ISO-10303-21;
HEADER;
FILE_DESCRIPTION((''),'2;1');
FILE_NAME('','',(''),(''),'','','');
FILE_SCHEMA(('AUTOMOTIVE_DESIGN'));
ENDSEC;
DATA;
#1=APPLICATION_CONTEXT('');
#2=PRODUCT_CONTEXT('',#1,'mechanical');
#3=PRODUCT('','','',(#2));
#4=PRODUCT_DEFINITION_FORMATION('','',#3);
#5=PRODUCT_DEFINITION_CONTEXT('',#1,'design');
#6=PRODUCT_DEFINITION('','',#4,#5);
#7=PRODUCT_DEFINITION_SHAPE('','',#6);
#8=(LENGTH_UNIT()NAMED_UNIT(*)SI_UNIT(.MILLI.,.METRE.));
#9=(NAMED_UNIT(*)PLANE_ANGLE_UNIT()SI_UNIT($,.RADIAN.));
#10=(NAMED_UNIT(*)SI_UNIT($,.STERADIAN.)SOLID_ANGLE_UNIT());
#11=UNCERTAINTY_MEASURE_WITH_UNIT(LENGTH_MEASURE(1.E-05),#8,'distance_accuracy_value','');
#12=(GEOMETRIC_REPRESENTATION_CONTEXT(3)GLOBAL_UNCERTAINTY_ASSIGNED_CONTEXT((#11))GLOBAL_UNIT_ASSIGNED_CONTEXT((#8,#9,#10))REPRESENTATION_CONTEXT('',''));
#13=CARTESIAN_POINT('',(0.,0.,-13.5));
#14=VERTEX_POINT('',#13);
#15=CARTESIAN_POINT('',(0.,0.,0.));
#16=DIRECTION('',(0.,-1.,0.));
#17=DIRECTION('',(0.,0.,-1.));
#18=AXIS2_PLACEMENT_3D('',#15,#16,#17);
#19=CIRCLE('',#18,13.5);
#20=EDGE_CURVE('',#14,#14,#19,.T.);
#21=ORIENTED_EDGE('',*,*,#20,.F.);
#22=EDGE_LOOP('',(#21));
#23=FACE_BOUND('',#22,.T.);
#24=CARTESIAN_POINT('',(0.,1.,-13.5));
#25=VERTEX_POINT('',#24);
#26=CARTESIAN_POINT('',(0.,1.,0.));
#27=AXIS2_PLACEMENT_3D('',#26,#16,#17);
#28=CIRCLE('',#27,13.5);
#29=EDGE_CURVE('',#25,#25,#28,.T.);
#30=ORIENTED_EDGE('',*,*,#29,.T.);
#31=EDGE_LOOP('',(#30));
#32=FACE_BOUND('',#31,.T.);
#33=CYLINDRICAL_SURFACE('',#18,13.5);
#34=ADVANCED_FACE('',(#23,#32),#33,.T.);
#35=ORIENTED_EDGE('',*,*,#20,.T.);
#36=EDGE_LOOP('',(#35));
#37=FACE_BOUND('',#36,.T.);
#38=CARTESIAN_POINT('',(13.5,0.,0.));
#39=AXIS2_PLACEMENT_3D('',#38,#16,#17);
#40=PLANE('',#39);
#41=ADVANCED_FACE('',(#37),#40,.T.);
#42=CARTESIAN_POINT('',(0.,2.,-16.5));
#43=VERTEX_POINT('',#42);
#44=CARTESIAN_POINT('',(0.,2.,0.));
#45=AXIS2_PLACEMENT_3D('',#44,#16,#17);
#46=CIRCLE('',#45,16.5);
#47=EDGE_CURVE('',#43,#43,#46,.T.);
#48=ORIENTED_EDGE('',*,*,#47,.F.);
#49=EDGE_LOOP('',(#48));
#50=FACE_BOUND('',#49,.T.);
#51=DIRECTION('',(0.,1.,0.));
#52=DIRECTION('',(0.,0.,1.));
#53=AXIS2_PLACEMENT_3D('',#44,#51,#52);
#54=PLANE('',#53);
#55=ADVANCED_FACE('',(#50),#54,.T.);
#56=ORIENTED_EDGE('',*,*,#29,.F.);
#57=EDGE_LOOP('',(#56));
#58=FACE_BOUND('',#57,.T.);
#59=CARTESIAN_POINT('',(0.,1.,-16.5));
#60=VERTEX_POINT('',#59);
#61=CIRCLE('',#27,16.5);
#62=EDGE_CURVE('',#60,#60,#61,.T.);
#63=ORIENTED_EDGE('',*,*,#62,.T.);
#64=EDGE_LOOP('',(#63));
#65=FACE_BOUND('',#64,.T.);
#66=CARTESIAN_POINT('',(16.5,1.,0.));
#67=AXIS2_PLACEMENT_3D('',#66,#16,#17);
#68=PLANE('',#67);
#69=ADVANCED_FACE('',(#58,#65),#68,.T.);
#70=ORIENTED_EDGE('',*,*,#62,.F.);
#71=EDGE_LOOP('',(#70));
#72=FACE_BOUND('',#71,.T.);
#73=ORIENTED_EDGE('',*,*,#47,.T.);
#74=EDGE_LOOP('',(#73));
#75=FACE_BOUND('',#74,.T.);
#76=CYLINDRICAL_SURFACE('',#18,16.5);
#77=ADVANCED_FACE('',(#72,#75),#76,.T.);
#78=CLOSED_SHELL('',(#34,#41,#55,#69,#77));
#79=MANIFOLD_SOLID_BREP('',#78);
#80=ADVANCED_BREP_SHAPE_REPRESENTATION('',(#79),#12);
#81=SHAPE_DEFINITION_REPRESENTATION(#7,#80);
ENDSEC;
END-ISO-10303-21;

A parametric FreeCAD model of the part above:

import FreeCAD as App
import Part
import Sketcher

V = App.Vector

doc = App.newDocument("Part")
body = doc.addObject("PartDesign::Body", "Body")

sketch1 = body.newObject("Sketcher::SketchObject", "Sketch")
sketch1.AttachmentSupport = (doc.getObject("XY_Plane"), [""])
sketch1.MapMode = "FlatFace"
sketch1.addGeometry([
    Part.LineSegment(V(0, 2, 0), V(0, 0, 0)),
    Part.LineSegment(V(0, 0, 0), V(13.5, 0, 0)),
    Part.LineSegment(V(13.5, 0, 0), V(13.5, 1, 0)),
    Part.LineSegment(V(13.5, 1, 0), V(16.5, 1, 0)),
    Part.LineSegment(V(16.5, 1, 0), V(16.5, 2, 0)),
    Part.LineSegment(V(16.5, 2, 0), V(0, 2, 0)),
], False)
sketch1.addConstraint([
    Sketcher.Constraint("Coincident", 0, 2, 1, 1),
    Sketcher.Constraint("Coincident", 1, 2, 2, 1),
    Sketcher.Constraint("Coincident", 2, 2, 3, 1),
    Sketcher.Constraint("Coincident", 3, 2, 4, 1),
    Sketcher.Constraint("Coincident", 4, 2, 5, 1),
    Sketcher.Constraint("Coincident", 5, 2, 0, 1),
    Sketcher.Constraint("Vertical", 0),
    Sketcher.Constraint("Horizontal", 1),
    Sketcher.Constraint("Vertical", 2),
    Sketcher.Constraint("Horizontal", 3),
    Sketcher.Constraint("Vertical", 4),
    Sketcher.Constraint("Horizontal", 5),
    Sketcher.Constraint("Coincident", 0, 2, -1, 1),
    Sketcher.Constraint("Equal", 2, 4),
    Sketcher.Constraint("DistanceX", 3, 1, 3, 2, 3.0),
    Sketcher.Constraint("DistanceY", 0, 2, 0, 1, 2.0),
    Sketcher.Constraint("DistanceX", 1, 1, 1, 2, 13.5),
])
revolution = body.newObject("PartDesign::Revolution", "Revolution")
revolution.Profile = sketch1
revolution.ReferenceAxis = (sketch1, ["V_Axis"])
revolution.Angle = 360

doc.recompute()
